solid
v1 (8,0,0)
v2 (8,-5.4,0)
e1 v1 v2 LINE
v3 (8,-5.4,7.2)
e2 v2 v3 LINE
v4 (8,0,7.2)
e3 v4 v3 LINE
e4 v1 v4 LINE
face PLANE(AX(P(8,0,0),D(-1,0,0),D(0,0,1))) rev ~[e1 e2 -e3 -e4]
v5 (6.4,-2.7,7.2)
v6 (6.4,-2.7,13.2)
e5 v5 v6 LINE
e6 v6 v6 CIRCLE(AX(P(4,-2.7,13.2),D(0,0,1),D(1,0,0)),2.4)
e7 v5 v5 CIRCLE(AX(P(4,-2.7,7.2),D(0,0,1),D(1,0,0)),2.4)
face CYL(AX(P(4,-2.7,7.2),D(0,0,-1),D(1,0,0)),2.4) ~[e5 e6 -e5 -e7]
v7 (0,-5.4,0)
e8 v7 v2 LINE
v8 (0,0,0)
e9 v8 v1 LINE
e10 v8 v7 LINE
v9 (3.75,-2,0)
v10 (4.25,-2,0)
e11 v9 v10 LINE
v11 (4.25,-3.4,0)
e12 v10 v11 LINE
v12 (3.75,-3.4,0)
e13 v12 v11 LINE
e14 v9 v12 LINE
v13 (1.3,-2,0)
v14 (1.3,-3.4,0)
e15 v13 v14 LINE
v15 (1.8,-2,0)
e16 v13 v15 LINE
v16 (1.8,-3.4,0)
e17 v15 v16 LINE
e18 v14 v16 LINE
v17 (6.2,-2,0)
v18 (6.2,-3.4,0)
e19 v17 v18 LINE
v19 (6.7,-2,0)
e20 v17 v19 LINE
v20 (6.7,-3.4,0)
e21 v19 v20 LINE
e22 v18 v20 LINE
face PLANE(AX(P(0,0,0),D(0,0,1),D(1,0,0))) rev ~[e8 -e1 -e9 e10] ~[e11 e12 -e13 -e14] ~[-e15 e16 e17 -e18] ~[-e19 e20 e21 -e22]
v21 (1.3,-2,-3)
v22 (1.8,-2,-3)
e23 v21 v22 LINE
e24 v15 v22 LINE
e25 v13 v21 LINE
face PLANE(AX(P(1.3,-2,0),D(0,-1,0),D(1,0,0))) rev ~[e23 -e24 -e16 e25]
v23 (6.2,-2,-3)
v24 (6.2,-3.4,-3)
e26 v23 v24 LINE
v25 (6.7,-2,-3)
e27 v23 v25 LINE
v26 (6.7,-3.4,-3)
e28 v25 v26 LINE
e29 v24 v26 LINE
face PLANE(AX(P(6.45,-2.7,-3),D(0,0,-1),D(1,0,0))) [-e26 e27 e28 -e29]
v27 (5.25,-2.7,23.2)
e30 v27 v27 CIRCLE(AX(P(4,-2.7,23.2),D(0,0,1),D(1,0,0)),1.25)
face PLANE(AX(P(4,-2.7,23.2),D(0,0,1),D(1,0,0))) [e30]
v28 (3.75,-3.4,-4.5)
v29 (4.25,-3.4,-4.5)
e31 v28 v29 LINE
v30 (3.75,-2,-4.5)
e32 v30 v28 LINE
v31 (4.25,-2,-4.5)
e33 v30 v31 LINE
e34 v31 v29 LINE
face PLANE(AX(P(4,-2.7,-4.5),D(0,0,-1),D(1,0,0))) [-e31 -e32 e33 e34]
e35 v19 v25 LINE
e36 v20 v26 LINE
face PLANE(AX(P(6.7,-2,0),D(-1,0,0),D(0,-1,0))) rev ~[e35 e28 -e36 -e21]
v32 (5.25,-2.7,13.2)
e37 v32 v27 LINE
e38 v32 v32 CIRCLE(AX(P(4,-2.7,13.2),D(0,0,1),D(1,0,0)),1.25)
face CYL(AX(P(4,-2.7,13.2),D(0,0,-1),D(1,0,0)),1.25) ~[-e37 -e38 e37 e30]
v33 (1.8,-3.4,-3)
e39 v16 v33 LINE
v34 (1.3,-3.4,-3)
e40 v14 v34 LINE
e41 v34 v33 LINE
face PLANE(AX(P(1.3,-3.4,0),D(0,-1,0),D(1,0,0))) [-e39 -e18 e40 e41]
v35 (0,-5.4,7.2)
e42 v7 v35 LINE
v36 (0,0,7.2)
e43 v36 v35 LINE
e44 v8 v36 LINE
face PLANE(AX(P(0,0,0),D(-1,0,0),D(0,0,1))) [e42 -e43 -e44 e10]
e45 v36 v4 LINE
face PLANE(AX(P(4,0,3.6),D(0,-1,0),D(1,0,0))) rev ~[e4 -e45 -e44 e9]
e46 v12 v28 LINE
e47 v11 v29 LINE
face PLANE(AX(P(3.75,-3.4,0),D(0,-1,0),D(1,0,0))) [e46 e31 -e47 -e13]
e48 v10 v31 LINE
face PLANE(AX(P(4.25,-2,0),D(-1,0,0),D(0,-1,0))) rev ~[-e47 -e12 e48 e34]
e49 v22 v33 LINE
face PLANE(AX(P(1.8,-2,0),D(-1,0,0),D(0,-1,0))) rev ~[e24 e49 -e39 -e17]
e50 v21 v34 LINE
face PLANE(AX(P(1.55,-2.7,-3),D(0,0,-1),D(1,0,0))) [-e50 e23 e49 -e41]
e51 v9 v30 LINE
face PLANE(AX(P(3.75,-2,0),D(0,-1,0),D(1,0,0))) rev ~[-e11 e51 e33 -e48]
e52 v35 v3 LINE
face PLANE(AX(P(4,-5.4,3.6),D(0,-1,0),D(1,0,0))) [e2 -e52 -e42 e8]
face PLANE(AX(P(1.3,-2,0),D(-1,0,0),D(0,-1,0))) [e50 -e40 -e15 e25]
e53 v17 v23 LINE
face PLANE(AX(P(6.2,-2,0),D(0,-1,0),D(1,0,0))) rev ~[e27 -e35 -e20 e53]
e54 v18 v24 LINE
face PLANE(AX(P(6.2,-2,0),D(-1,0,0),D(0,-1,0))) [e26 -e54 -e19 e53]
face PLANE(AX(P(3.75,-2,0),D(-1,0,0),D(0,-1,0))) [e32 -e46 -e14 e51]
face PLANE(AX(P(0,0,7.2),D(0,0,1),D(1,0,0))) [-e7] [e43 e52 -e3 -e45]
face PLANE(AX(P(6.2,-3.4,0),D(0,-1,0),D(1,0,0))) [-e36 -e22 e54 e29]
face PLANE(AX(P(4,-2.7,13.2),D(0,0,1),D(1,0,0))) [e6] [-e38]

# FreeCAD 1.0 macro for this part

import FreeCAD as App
import Part
import Sketcher

doc = App.newDocument("Part")
params = doc.addObject("Spreadsheet::Sheet", "Params")
for row, (alias, value) in enumerate([
    ("sketch1_width", "8 mm"),
    ("sketch1_height", "7.2 mm"),
    ("pad1_length", "5.4 mm"),
    ("sketch2_diameter", "4.8 mm"),
    ("pad2_length", "6 mm"),
    ("sketch3_diameter", "2.5 mm"),
    ("pad3_length", "10 mm"),
    ("sketch4_width", "0.5 mm"),
    ("sketch4_height", "1.4 mm"),
    ("pad4_length", "3 mm"),
    ("sketch5_width", "0.5 mm"),
    ("sketch5_height", "1.4 mm"),
    ("pad5_length", "4.5 mm"),
], start=1):
    params.set(f"A{row}", alias)
    params.set(f"B{row}", "=" + value)
    params.setAlias(f"B{row}", alias)

body = doc.addObject("PartDesign::Body", "Body")

# Sketch on XZ plane
sketch1 = doc.addObject("Sketcher::SketchObject", "Sketch")
body.addObject(sketch1)
sketch1.AttachmentSupport = (doc.XZ_Plane, [""])
sketch1.MapMode = "FlatFace"
sketch1.addGeometry([
    Part.LineSegment(App.Vector(0, 7, 0), App.Vector(0, 0, 0)),
    Part.LineSegment(App.Vector(0, 0, 0), App.Vector(8, 0, 0)),
    Part.LineSegment(App.Vector(8, 0, 0), App.Vector(8, 7, 0)),
    Part.LineSegment(App.Vector(8, 7, 0), App.Vector(0, 7, 0)),
], False)
sketch1.addConstraint([
    Sketcher.Constraint("Coincident", 0, 2, 1, 1),
    Sketcher.Constraint("Coincident", 1, 2, 2, 1),
    Sketcher.Constraint("Coincident", 2, 2, 3, 1),
    Sketcher.Constraint("Coincident", 3, 2, 0, 1),
    Sketcher.Constraint("Vertical", 0),
    Sketcher.Constraint("Horizontal", 1),
    Sketcher.Constraint("Vertical", 2),
    Sketcher.Constraint("Horizontal", 3),
    Sketcher.Constraint("Coincident", 0, 2, -1, 1),
    Sketcher.Constraint("DistanceX", 1, 1, 1, 2, 8.0),
    Sketcher.Constraint("DistanceY", 0, 2, 0, 1, 7.2),
])
sketch1.setExpression("Constraints[9]", "Params.sketch1_width")
sketch1.setExpression("Constraints[10]", "Params.sketch1_height")
pad1 = doc.addObject("PartDesign::Pad", "Pad")
body.addObject(pad1)
pad1.Profile = sketch1
pad1.setExpression("Length", "Params.pad1_length")

# Sketch on XY plane
sketch2 = doc.addObject("Sketcher::SketchObject", "Sketch001")
body.addObject(sketch2)
sketch2.AttachmentSupport = (doc.XY_Plane, [""])
sketch2.MapMode = "FlatFace"
sketch2.AttachmentOffset = App.Placement(App.Vector(0, 0, 7.2), App.Rotation())
sketch2.addGeometry(Part.Circle(App.Vector(4, -2.7, 0), App.Vector(0, 0, 1), 2.4), False)
sketch2.addConstraint([
    Sketcher.Constraint("Diameter", 0, 4.8),
    Sketcher.Constraint("DistanceX", -1, 1, 0, 3, 4.0),
    Sketcher.Constraint("DistanceY", 0, 3, -1, 1, 2.7),
])
sketch2.setExpression("Constraints[0]", "Params.sketch2_diameter")
pad2 = doc.addObject("PartDesign::Pad", "Pad001")
body.addObject(pad2)
pad2.Profile = sketch2
pad2.setExpression("Length", "Params.pad2_length")

# Sketch on XY plane
sketch3 = doc.addObject("Sketcher::SketchObject", "Sketch002")
body.addObject(sketch3)
sketch3.AttachmentSupport = (doc.XY_Plane, [""])
sketch3.MapMode = "FlatFace"
sketch3.AttachmentOffset = App.Placement(App.Vector(0, 0, 13.2), App.Rotation())
sketch3.addGeometry(Part.Circle(App.Vector(4, -2.7, 0), App.Vector(0, 0, 1), 1.2), False)
sketch3.addConstraint([
    Sketcher.Constraint("Diameter", 0, 2.5),
    Sketcher.Constraint("DistanceX", -1, 1, 0, 3, 4.0),
    Sketcher.Constraint("DistanceY", 0, 3, -1, 1, 2.7),
])
sketch3.setExpression("Constraints[0]", "Params.sketch3_diameter")
pad3 = doc.addObject("PartDesign::Pad", "Pad002")
body.addObject(pad3)
pad3.Profile = sketch3
pad3.setExpression("Length", "Params.pad3_length")

# Sketch on XY plane
sketch4 = doc.addObject("Sketcher::SketchObject", "Sketch003")
body.addObject(sketch4)
sketch4.AttachmentSupport = (doc.XY_Plane, [""])
sketch4.MapMode = "FlatFace"
sketch4.addGeometry([
    Part.LineSegment(App.Vector(1.3, -3.4, 0), App.Vector(1.3, -2, 0)),  # 0
    Part.LineSegment(App.Vector(1.3, -2, 0), App.Vector(1.8, -2, 0)),  # 1
    Part.LineSegment(App.Vector(1.8, -2, 0), App.Vector(1.8, -3.4, 0)),  # 2
    Part.LineSegment(App.Vector(1.8, -3.4, 0), App.Vector(1.3, -3.4, 0)),  # 3
    Part.LineSegment(App.Vector(6.2, -3.4, 0), App.Vector(6.2, -2, 0)),  # 4
    Part.LineSegment(App.Vector(6.2, -2, 0), App.Vector(6.7, -2, 0)),  # 5
    Part.LineSegment(App.Vector(6.7, -2, 0), App.Vector(6.7, -3.4, 0)),  # 6
    Part.LineSegment(App.Vector(6.7, -3.4, 0), App.Vector(6.2, -3.4, 0)),  # 7
], False)
sketch4.addConstraint([
    Sketcher.Constraint("Coincident", 0, 2, 1, 1),
    Sketcher.Constraint("Coincident", 1, 2, 2, 1),
    Sketcher.Constraint("Coincident", 2, 2, 3, 1),
    Sketcher.Constraint("Coincident", 3, 2, 0, 1),
    Sketcher.Constraint("Coincident", 4, 2, 5, 1),
    Sketcher.Constraint("Coincident", 5, 2, 6, 1),
    Sketcher.Constraint("Coincident", 6, 2, 7, 1),
    Sketcher.Constraint("Coincident", 7, 2, 4, 1),
    Sketcher.Constraint("Vertical", 0),
    Sketcher.Constraint("Horizontal", 1),
    Sketcher.Constraint("Vertical", 2),
    Sketcher.Constraint("Horizontal", 3),
    Sketcher.Constraint("Vertical", 4),
    Sketcher.Constraint("Horizontal", 5),
    Sketcher.Constraint("Vertical", 6),
    Sketcher.Constraint("Horizontal", 7),
    Sketcher.Constraint("Horizontal", 1, 2, 4, 2),
    Sketcher.Constraint("Horizontal", 3, 2, 6, 2),
    Sketcher.Constraint("Equal", 3, 5),
    Sketcher.Constraint("DistanceX", 1, 1, 1, 2, 0.5),
    Sketcher.Constraint("DistanceY", 0, 1, 0, 2, 1.4),
    Sketcher.Constraint("DistanceY", 0, 2, -1, 1, 2.0),
    Sketcher.Constraint("DistanceX", -1, 1, 0, 2, 1.3),
    Sketcher.Constraint("DistanceX", -1, 1, 4, 2, 6.2),
])
sketch4.setExpression("Constraints[19]", "Params.sketch4_width")
sketch4.setExpression("Constraints[20]", "Params.sketch4_height")
pad4 = doc.addObject("PartDesign::Pad", "Pad003")
body.addObject(pad4)
pad4.Profile = sketch4
pad4.setExpression("Length", "Params.pad4_length")
pad4.Reversed = True

# Sketch on XY plane
sketch5 = doc.addObject("Sketcher::SketchObject", "Sketch004")
body.addObject(sketch5)
sketch5.AttachmentSupport = (doc.XY_Plane, [""])
sketch5.MapMode = "FlatFace"
sketch5.addGeometry([
    Part.LineSegment(App.Vector(3.8, -3.4, 0), App.Vector(3.8, -2, 0)),
    Part.LineSegment(App.Vector(3.8, -2, 0), App.Vector(4.2, -2, 0)),
    Part.LineSegment(App.Vector(4.2, -2, 0), App.Vector(4.2, -3.4, 0)),
    Part.LineSegment(App.Vector(4.2, -3.4, 0), App.Vector(3.8, -3.4, 0)),
], False)
sketch5.addConstraint([
    Sketcher.Constraint("Coincident", 0, 2, 1, 1),
    Sketcher.Constraint("Coincident", 1, 2, 2, 1),
    Sketcher.Constraint("Coincident", 2, 2, 3, 1),
    Sketcher.Constraint("Coincident", 3, 2, 0, 1),
    Sketcher.Constraint("Vertical", 0),
    Sketcher.Constraint("Horizontal", 1),
    Sketcher.Constraint("Vertical", 2),
    Sketcher.Constraint("Horizontal", 3),
    Sketcher.Constraint("DistanceX", 1, 1, 1, 2, 0.5),
    Sketcher.Constraint("DistanceY", 0, 1, 0, 2, 1.4),
    Sketcher.Constraint("DistanceY", 0, 2, -1, 1, 2.0),
    Sketcher.Constraint("DistanceX", -1, 1, 0, 2, 3.75),
])
sketch5.setExpression("Constraints[8]", "Params.sketch5_width")
sketch5.setExpression("Constraints[9]", "Params.sketch5_height")
pad5 = doc.addObject("PartDesign::Pad", "Pad004")
body.addObject(pad5)
pad5.Profile = sketch5
pad5.setExpression("Length", "Params.pad5_length")
pad5.Reversed = True

doc.recompute()
